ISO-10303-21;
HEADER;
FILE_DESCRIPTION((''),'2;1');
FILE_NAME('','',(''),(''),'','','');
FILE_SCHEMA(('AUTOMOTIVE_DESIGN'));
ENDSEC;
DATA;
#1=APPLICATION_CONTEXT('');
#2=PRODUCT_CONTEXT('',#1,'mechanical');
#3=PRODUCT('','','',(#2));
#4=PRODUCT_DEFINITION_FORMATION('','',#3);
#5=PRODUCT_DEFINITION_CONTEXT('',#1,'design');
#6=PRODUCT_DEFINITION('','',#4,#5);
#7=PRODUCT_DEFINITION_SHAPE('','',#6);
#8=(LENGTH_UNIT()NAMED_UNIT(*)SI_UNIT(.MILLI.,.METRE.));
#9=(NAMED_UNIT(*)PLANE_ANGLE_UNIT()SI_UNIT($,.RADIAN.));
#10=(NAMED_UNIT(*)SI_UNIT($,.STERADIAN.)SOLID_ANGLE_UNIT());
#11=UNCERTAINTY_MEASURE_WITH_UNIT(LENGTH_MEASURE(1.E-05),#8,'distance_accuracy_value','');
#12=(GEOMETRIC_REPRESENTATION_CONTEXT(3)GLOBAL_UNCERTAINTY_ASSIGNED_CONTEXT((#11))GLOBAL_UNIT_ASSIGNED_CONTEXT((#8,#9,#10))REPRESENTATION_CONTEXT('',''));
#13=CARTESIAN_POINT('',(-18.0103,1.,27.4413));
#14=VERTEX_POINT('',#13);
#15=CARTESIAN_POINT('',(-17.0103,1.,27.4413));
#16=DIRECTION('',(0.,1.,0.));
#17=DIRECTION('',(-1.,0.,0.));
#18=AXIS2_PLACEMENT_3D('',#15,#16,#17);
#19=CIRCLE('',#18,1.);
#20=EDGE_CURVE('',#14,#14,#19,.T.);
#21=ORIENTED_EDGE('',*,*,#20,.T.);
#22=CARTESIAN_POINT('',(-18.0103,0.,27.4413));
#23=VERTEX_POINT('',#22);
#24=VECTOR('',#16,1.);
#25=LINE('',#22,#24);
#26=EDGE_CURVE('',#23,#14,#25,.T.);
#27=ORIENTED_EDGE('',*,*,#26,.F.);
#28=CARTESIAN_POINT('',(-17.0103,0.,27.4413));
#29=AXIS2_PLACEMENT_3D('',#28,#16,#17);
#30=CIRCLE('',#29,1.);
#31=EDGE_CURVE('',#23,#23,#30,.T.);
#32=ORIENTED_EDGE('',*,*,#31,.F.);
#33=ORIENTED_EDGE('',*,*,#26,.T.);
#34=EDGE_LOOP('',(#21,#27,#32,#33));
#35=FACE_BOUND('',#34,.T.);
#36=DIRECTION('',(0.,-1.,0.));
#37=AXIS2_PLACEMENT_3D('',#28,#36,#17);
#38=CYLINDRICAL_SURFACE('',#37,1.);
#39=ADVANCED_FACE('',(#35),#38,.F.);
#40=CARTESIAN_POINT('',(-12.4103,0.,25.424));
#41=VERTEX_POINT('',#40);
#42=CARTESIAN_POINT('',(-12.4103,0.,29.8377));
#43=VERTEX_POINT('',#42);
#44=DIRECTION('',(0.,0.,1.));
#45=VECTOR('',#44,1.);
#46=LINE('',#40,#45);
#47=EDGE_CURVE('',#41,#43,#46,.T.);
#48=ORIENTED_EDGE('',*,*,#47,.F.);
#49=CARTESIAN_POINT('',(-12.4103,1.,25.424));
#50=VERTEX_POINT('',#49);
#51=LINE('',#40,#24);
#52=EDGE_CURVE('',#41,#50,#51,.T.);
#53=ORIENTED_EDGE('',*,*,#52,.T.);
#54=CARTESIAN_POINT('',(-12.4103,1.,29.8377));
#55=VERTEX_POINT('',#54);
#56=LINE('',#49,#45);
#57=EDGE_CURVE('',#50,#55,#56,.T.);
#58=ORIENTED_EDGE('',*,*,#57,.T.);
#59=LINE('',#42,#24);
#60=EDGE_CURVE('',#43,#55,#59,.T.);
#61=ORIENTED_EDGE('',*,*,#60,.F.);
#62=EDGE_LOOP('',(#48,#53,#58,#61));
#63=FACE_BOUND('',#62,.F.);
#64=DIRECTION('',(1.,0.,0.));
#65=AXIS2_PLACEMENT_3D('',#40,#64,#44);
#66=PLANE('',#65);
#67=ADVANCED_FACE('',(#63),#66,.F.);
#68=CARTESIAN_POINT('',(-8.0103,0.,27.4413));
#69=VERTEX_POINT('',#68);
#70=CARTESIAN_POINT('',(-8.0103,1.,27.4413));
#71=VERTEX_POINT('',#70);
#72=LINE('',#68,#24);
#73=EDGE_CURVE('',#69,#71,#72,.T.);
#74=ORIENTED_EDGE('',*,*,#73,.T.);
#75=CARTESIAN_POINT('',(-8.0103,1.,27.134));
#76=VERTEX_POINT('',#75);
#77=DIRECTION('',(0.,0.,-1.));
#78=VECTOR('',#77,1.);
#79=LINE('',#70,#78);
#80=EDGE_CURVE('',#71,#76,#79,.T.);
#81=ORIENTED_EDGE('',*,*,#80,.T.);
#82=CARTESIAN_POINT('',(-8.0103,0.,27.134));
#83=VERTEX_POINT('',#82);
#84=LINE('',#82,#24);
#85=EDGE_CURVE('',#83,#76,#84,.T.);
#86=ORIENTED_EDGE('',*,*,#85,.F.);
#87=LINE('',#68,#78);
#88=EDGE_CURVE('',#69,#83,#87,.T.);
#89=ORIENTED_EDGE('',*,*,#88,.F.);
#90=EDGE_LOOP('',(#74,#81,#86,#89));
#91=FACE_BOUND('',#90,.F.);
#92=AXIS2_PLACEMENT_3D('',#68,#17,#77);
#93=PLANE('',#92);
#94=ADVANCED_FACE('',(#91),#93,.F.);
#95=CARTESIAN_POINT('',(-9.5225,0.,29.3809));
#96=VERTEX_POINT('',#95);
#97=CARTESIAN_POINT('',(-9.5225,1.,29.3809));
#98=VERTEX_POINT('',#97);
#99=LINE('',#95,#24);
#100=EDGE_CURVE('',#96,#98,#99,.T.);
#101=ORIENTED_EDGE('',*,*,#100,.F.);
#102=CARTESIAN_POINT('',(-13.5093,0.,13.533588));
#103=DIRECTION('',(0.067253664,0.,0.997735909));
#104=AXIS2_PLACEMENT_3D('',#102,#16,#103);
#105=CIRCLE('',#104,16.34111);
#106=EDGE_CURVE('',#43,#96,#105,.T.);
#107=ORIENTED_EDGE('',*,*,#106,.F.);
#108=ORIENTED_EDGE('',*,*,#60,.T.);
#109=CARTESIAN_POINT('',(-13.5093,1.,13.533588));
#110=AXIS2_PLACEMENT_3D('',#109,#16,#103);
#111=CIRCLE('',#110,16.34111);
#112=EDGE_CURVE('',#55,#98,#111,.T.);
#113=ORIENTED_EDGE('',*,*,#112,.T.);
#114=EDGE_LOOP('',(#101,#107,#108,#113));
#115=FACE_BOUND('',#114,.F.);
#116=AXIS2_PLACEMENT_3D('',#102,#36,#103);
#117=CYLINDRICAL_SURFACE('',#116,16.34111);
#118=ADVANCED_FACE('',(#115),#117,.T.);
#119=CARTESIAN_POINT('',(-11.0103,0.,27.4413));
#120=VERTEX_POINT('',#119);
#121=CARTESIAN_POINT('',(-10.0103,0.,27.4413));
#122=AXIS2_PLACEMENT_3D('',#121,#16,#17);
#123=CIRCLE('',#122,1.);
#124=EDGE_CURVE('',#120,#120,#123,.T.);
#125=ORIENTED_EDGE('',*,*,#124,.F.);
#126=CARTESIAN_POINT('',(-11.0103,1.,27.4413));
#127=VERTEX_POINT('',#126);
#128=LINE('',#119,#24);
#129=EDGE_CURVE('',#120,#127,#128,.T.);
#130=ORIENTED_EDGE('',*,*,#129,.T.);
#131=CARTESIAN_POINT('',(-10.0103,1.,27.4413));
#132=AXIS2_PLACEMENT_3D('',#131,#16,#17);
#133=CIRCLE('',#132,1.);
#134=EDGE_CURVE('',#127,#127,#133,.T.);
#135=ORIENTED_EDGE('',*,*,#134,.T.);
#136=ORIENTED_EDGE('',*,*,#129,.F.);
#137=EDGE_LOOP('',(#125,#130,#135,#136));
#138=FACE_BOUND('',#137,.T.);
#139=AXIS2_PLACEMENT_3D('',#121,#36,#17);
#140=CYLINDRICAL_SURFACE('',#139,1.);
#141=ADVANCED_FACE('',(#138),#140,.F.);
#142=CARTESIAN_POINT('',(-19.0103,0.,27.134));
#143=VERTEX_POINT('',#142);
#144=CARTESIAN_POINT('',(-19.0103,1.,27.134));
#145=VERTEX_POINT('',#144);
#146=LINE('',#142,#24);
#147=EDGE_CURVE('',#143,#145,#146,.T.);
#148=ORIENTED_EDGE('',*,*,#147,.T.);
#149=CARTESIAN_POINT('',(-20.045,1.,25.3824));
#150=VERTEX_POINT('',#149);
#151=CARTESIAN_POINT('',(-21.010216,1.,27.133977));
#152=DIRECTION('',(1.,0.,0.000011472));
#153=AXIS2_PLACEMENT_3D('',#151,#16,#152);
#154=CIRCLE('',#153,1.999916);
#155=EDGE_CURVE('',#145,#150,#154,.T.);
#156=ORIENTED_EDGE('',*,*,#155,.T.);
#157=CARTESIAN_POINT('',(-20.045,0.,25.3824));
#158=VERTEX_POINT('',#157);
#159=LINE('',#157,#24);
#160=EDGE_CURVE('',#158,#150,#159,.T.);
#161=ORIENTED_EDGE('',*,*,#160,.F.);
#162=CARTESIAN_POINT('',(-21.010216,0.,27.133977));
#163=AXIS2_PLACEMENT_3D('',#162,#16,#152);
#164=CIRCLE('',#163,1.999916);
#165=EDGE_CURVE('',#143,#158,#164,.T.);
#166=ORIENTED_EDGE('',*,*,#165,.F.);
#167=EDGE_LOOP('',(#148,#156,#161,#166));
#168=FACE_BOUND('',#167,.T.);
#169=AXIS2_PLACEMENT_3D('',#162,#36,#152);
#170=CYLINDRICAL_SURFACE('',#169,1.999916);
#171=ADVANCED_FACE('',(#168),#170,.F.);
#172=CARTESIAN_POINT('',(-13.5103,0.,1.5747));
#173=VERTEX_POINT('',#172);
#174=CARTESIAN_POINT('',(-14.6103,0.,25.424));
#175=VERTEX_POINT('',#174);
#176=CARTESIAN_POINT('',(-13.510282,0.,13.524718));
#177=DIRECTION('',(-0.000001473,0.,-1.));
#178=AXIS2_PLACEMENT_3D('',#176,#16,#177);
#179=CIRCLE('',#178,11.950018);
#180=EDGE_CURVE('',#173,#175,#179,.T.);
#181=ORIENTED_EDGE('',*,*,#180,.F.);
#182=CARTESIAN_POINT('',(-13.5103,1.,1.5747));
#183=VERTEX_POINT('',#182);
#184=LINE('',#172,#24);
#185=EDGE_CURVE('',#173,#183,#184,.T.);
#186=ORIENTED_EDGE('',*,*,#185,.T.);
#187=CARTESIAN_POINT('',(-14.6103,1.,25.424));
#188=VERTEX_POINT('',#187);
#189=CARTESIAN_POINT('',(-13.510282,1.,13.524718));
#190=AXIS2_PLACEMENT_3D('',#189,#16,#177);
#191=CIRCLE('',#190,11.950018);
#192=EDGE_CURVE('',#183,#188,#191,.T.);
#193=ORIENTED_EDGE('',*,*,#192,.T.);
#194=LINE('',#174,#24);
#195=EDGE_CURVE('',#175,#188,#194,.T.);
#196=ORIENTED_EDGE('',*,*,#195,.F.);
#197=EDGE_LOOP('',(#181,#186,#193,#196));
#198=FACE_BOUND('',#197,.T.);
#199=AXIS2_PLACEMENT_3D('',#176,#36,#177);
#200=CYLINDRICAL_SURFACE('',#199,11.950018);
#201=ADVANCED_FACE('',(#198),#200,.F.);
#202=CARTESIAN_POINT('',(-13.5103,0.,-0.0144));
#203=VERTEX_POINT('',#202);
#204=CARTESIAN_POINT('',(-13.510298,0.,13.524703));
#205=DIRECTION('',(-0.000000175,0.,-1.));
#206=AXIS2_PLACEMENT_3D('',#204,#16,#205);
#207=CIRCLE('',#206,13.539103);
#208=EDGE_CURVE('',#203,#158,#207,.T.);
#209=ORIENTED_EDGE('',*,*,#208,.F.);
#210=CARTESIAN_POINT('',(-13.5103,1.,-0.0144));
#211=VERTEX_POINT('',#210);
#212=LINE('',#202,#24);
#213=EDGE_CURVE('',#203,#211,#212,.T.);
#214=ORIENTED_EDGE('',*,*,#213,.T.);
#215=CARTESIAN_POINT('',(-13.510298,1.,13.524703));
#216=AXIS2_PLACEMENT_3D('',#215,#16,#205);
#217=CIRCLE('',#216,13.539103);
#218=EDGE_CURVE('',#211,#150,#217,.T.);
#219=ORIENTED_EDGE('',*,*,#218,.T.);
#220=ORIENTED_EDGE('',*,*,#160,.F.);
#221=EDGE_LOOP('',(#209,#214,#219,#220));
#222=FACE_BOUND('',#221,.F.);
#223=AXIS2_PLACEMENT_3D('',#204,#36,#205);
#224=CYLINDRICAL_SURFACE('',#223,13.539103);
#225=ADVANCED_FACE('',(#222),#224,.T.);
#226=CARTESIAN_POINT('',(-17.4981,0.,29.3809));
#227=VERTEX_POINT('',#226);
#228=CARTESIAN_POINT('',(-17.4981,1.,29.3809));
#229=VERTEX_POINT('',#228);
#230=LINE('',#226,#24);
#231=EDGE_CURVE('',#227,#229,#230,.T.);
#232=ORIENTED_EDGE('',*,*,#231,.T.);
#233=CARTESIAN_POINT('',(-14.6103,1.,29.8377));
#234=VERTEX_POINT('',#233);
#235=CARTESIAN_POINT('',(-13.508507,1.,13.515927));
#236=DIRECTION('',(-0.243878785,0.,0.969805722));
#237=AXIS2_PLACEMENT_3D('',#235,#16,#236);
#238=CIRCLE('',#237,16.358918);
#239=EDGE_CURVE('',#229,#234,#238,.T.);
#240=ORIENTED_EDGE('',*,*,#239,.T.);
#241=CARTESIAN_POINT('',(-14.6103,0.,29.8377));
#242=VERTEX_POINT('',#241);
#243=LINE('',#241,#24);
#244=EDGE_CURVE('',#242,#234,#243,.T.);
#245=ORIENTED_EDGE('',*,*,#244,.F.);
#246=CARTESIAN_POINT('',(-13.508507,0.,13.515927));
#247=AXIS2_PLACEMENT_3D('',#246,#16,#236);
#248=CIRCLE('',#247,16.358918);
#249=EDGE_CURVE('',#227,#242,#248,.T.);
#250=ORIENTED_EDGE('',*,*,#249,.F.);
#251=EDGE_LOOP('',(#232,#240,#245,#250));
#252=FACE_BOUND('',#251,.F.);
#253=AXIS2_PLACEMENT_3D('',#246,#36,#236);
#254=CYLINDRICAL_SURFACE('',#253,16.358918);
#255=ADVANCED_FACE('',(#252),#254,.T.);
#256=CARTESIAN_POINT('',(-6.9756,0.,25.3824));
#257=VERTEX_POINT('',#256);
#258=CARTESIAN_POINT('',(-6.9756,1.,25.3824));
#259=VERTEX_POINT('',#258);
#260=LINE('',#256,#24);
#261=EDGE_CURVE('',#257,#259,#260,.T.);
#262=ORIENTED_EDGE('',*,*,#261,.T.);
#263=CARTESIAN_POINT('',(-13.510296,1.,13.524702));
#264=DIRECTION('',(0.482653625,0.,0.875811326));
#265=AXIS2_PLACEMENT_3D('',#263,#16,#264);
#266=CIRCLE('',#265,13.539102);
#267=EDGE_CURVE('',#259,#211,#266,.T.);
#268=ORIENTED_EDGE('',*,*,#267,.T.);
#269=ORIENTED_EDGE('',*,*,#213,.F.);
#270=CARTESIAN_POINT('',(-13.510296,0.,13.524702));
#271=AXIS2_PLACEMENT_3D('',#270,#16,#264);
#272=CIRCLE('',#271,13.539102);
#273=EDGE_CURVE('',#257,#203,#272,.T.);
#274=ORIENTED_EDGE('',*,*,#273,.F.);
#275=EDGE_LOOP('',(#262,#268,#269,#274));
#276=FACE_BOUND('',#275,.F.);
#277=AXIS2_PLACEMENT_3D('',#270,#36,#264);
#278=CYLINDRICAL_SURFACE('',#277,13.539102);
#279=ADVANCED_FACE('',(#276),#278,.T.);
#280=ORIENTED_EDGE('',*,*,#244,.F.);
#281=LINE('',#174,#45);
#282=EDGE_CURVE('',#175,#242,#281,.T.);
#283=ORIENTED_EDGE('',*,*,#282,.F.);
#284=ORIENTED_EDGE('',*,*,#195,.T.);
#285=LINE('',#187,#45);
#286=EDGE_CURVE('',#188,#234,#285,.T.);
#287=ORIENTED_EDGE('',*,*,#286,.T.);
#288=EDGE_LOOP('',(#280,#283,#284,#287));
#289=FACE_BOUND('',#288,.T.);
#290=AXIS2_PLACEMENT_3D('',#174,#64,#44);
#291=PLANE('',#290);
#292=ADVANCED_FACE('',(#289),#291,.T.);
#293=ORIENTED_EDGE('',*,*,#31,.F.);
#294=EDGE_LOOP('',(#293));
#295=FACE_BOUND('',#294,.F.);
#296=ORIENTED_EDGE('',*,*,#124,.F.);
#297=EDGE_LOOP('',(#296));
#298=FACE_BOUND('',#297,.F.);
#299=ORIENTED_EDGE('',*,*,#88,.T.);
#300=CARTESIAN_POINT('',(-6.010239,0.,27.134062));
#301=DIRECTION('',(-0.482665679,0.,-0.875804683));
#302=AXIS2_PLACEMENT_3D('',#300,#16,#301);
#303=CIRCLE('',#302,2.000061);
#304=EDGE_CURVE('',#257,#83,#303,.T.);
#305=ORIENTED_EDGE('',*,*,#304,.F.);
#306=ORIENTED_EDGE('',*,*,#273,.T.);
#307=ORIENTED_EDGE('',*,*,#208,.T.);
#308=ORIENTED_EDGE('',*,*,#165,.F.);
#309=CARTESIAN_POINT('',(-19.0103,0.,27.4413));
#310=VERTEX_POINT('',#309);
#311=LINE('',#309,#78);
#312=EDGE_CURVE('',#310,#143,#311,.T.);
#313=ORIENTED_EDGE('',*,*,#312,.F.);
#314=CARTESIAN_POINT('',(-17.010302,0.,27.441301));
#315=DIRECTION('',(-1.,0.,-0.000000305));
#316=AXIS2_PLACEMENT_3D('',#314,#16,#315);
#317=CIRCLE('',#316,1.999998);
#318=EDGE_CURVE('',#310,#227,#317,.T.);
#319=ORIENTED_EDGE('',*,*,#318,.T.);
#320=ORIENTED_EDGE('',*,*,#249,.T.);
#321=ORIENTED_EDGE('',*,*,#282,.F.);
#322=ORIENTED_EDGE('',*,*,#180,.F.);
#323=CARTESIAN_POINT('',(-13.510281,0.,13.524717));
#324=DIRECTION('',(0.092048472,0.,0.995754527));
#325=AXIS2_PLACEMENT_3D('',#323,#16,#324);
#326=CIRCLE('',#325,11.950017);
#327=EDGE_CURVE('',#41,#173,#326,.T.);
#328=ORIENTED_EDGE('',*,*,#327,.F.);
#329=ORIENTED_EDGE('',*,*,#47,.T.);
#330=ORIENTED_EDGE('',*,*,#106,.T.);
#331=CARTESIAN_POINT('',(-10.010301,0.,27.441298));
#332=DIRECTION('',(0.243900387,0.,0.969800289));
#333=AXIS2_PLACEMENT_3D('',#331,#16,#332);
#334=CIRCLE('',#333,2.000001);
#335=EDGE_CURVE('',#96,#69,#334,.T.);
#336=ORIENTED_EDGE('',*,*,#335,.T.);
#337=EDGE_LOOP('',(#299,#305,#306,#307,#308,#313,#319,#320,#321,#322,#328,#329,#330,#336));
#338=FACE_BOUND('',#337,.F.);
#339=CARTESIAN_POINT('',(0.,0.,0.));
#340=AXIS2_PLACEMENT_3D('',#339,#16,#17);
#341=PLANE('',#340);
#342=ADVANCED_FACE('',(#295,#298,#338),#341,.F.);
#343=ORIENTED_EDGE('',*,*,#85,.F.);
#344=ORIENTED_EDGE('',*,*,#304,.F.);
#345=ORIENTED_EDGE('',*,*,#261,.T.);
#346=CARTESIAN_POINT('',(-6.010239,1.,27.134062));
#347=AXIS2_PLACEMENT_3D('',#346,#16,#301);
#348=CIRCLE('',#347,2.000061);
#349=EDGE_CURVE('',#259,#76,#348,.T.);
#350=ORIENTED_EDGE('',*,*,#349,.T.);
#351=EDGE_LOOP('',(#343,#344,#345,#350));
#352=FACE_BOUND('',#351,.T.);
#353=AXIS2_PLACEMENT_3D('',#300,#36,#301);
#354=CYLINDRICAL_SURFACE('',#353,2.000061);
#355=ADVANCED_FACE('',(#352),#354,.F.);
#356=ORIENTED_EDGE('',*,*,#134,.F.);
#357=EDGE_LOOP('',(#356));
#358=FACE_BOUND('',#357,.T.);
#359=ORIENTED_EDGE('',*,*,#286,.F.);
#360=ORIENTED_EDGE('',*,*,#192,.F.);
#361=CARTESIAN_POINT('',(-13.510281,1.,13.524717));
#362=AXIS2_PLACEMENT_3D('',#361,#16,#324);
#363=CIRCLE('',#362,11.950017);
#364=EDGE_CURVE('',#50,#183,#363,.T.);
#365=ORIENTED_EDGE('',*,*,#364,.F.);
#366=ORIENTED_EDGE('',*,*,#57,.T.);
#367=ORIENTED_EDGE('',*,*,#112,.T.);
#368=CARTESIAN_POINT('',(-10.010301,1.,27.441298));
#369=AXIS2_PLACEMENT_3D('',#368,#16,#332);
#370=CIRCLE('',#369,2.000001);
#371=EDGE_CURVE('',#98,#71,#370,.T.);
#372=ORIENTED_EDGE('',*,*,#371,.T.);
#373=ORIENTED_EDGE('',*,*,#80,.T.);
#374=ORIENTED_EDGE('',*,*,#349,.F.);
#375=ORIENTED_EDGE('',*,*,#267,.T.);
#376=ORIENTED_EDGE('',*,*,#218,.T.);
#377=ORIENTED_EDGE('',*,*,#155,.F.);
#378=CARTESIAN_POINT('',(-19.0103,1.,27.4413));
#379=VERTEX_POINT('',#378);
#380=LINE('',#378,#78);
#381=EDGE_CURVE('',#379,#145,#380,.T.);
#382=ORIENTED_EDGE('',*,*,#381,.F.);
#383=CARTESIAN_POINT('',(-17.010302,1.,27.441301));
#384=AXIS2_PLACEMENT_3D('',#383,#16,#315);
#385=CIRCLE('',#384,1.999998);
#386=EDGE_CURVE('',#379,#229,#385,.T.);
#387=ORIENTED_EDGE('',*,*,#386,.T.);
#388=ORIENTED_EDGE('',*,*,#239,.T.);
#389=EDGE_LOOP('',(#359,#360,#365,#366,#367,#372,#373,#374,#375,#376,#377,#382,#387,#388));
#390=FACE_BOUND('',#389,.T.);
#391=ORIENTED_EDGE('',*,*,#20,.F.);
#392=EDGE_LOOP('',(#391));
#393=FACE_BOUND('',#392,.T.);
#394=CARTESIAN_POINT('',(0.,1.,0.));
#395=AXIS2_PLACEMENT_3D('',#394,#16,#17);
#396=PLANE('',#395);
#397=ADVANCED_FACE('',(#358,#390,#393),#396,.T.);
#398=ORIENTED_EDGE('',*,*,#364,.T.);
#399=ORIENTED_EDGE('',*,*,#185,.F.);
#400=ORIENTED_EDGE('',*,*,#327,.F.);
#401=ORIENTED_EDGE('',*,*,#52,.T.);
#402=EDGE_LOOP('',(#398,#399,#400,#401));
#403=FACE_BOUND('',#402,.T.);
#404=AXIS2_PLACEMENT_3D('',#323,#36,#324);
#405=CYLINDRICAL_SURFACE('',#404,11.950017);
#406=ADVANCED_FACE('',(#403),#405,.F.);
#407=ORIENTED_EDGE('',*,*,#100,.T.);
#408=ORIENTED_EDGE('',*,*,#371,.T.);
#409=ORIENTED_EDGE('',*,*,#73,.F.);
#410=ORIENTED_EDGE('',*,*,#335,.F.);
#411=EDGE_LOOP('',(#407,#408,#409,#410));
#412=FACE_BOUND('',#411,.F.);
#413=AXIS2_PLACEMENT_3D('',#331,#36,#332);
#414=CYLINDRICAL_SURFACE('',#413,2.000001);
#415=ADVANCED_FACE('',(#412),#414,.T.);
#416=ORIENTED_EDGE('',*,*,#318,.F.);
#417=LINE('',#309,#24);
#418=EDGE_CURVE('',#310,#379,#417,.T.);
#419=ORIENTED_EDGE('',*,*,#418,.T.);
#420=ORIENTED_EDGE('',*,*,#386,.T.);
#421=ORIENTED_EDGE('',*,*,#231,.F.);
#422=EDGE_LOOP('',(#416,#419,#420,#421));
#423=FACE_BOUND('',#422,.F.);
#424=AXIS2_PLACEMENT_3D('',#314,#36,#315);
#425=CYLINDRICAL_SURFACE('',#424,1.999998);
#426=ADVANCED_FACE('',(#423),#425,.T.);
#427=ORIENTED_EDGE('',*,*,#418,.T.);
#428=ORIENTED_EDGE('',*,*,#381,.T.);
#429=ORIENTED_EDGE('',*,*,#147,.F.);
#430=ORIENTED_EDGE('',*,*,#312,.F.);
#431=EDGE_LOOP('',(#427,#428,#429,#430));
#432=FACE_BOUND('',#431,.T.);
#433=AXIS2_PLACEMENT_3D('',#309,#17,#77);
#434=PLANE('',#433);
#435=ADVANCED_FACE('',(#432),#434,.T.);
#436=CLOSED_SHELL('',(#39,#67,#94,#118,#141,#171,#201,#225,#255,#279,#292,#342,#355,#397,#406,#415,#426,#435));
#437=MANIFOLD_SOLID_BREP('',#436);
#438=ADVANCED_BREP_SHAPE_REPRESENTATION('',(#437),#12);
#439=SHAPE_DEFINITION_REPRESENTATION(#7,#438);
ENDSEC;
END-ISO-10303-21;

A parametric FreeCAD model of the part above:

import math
import FreeCAD as App
import Part
import Sketcher

doc = App.newDocument("Part")
body = doc.addObject("PartDesign::Body", "Body")

# Sketch on XZ plane
sketch1 = doc.addObject("Sketcher::SketchObject", "Sketch")
body.addObject(sketch1)
sketch1.AttachmentSupport = (doc.XZ_Plane, [""])
sketch1.MapMode = "FlatFace"
sketch1.addGeometry([
    Part.ArcOfCircle(Part.Circle(App.Vector(-10.01, 27.44, 0), App.Vector(0, 0, 1), 2), math.radians(0), math.radians(76)),  # 0
    Part.LineSegment(App.Vector(-8.01, 27.44, 0), App.Vector(-8.01, 27.13, 0)),  # 1
    Part.ArcOfCircle(Part.Circle(App.Vector(-6.01, 27.13, 0), App.Vector(0, 0, 1), 2), math.radians(180), math.radians(241)),  # 2
    Part.ArcOfCircle(Part.Circle(App.Vector(-13.51, 13.52, 0), App.Vector(0, 0, 1), 13.54), math.radians(-90), math.radians(61)),  # 3
    Part.ArcOfCircle(Part.Circle(App.Vector(-13.51, 13.52, 0), App.Vector(0, 0, 1), 13.54), math.radians(119), math.radians(270)),  # 4
    Part.ArcOfCircle(Part.Circle(App.Vector(-21.01, 27.13, 0), App.Vector(0, 0, 1), 2), math.radians(-61), math.radians(0)),  # 5
    Part.LineSegment(App.Vector(-19.01, 27.13, 0), App.Vector(-19.01, 27.44, 0)),  # 6
    Part.ArcOfCircle(Part.Circle(App.Vector(-17.01, 27.44, 0), App.Vector(0, 0, 1), 2), math.radians(104), math.radians(180)),  # 7
    Part.ArcOfCircle(Part.Circle(App.Vector(-13.51, 13.52, 0), App.Vector(0, 0, 1), 16.36), math.radians(93.86), math.radians(104.12)),  # 8
    Part.LineSegment(App.Vector(-14.61, 29.84, 0), App.Vector(-14.61, 25.42, 0)),  # 9
    Part.ArcOfCircle(Part.Circle(App.Vector(-13.51, 13.52, 0), App.Vector(0, 0, 1), 11.95), math.radians(95), math.radians(270)),  # 10
    Part.ArcOfCircle(Part.Circle(App.Vector(-13.51, 13.52, 0), App.Vector(0, 0, 1), 11.95), math.radians(-90), math.radians(85)),  # 11
    Part.LineSegment(App.Vector(-12.41, 25.42, 0), App.Vector(-12.41, 29.84, 0)),  # 12
    Part.ArcOfCircle(Part.Circle(App.Vector(-13.51, 13.53, 0), App.Vector(0, 0, 1), 16.34), math.radians(75.88), math.radians(86.14)),  # 13
    Part.Circle(App.Vector(-10.01, 27.44, 0), App.Vector(0, 0, 1), 1),  # 14
    Part.Circle(App.Vector(-17.01, 27.44, 0), App.Vector(0, 0, 1), 1),  # 15
], False)
sketch1.addConstraint([
    Sketcher.Constraint("Tangent", 0, 1, 1, 1),
    Sketcher.Constraint("Tangent", 1, 2, 2, 1),
    Sketcher.Constraint("Tangent", 2, 2, 3, 2),
    Sketcher.Constraint("Tangent", 3, 1, 4, 2),
    Sketcher.Constraint("Tangent", 4, 1, 5, 1),
    Sketcher.Constraint("Tangent", 5, 2, 6, 1),
    Sketcher.Constraint("Tangent", 6, 2, 7, 2),
    Sketcher.Constraint("Tangent", 7, 1, 8, 2),
    Sketcher.Constraint("Coincident", 8, 1, 9, 1),
    Sketcher.Constraint("Coincident", 9, 2, 10, 1),
    Sketcher.Constraint("Tangent", 10, 2, 11, 1),
    Sketcher.Constraint("Coincident", 11, 2, 12, 1),
    Sketcher.Constraint("Coincident", 12, 2, 13, 2),
    Sketcher.Constraint("Tangent", 13, 1, 0, 2),
    Sketcher.Constraint("Vertical", 1),
    Sketcher.Constraint("Vertical", 6),
    Sketcher.Constraint("Vertical", 9),
    Sketcher.Constraint("Vertical", 12),
    Sketcher.Constraint("Coincident", 10, 3, 3, 3),
    Sketcher.Constraint("Coincident", 14, 3, 0, 3),
    Sketcher.Constraint("Coincident", 15, 3, 7, 3),
    Sketcher.Constraint("Equal", 0, 2),
    Sketcher.Constraint("Equal", 3, 4),
    Sketcher.Constraint("Equal", 2, 5),
    Sketcher.Constraint("Equal", 5, 7),
    Sketcher.Constraint("Equal", 10, 11),
    Sketcher.Constraint("Equal", 14, 15),
    Sketcher.Constraint("Horizontal", 2, 3, 5, 3),
    Sketcher.Constraint("Horizontal", 0, 3, 7, 3),
    Sketcher.Constraint("Horizontal", 9, 2, 11, 2),
    Sketcher.Constraint("Horizontal", 8, 1, 12, 2),
    Sketcher.Constraint("Vertical", 11, 3, 3, 1),
    Sketcher.Constraint("Vertical", 3, 1, 10, 2),
    Sketcher.Constraint("Diameter", 14, 2.0),
    Sketcher.Constraint("Radius", 0, 2.0),
    Sketcher.Constraint("Radius", 10, 11.95),
    Sketcher.Constraint("Radius", 3, 13.539),
    Sketcher.Constraint("DistanceX", 7, 3, 8, 1, 2.4),
    Sketcher.Constraint("Radius", 8, 16.359),
    Sketcher.Constraint("Radius", 13, 16.341),
    Sketcher.Constraint("DistanceX", 5, 3, 0, 3, 11.0),
    Sketcher.Constraint("DistanceY", 1, 2, 1, 1, 0.3073),
    Sketcher.Constraint("DistanceY", 9, 2, 9, 1, 4.4137),
    Sketcher.Constraint("DistanceY", -1, 1, 2, 3, 27.134),
    Sketcher.Constraint("DistanceX", 4, 1, -1, 1, 20.045),
])
pad1 = doc.addObject("PartDesign::Pad", "Pad")
body.addObject(pad1)
pad1.Profile = sketch1
pad1.Length = 1
pad1.Reversed = True

doc.recompute()
